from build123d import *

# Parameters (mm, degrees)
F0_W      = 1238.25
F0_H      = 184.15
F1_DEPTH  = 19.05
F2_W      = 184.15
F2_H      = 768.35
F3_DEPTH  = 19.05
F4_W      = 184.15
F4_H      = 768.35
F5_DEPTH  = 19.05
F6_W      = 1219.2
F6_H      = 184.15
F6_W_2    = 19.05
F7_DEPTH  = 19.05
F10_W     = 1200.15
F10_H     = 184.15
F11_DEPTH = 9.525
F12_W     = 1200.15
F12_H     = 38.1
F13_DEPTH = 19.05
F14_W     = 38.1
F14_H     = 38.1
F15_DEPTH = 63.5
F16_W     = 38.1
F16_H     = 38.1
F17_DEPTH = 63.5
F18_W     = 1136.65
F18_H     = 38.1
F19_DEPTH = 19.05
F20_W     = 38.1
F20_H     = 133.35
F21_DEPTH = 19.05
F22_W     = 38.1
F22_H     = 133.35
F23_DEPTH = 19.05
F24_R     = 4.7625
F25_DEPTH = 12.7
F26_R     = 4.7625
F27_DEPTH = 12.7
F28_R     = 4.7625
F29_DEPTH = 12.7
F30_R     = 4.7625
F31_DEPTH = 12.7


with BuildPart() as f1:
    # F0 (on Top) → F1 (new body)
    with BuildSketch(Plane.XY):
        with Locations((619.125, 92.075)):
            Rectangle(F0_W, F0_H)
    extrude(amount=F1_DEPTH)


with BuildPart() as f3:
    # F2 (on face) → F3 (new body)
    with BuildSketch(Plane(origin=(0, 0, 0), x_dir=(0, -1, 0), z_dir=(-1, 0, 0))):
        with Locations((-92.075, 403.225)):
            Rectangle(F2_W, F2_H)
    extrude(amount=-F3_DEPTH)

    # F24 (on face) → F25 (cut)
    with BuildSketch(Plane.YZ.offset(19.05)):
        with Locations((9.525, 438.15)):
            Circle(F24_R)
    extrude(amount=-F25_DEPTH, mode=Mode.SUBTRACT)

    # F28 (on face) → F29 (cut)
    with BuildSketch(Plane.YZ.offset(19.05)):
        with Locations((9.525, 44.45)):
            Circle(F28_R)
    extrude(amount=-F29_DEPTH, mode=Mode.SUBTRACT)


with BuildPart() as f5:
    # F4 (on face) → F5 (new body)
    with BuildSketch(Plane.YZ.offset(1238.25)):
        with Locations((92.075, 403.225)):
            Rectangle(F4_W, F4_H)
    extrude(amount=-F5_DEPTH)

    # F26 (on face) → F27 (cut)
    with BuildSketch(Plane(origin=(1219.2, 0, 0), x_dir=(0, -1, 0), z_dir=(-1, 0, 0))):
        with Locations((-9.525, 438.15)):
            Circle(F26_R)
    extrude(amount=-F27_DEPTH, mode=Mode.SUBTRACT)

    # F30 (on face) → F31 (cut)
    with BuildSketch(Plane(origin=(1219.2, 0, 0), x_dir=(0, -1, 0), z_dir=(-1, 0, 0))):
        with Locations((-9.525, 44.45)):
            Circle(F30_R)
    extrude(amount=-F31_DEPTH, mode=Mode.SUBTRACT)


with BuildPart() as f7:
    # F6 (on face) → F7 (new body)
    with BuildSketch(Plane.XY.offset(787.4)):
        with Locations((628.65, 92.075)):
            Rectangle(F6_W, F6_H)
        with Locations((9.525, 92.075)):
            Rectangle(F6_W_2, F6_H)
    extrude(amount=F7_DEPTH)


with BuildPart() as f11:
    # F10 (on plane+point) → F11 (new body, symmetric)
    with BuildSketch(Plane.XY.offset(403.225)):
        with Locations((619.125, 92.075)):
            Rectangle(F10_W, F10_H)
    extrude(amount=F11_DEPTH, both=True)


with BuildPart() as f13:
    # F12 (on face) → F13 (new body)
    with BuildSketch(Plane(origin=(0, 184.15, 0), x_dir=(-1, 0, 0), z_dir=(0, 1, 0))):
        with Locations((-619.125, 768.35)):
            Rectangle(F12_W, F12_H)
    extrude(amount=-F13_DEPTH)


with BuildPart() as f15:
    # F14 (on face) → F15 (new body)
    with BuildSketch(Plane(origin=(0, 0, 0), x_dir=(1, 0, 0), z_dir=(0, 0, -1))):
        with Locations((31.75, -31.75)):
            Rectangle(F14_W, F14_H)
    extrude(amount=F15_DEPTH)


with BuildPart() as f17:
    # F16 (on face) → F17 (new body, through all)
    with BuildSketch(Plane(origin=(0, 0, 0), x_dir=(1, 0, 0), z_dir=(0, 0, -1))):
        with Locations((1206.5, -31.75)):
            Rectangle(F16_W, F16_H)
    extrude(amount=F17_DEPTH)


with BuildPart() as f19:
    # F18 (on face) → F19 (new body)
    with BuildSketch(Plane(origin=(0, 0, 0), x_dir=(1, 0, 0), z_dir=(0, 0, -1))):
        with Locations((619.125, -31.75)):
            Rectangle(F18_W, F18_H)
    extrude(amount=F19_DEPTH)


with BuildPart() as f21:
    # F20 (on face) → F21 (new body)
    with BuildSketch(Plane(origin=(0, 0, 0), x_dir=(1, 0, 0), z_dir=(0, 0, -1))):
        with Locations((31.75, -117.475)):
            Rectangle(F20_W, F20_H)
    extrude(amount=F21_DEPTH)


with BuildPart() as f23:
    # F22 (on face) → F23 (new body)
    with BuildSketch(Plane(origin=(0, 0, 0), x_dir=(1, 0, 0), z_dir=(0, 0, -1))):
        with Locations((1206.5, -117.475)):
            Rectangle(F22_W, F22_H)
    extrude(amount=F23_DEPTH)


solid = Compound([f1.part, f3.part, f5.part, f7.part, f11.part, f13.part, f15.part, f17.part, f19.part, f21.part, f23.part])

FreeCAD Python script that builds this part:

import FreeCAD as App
import Part
import Sketcher
from FreeCAD import Vector
Q = App.Units.Quantity

doc = App.newDocument("Part")
body = doc.addObject("PartDesign::Body", "Body")

sketch1 = body.newObject("Sketcher::SketchObject", "Sketch")
sketch1.AttachmentSupport = (doc.getObject("XY_Plane"), [""])
sketch1.MapMode = "FlatFace"
sketch1.addGeometry(Part.LineSegment(Vector(0, 184, 0), Vector(0, 0, 0)), False)
sketch1.addGeometry(Part.LineSegment(Vector(0, 0, 0), Vector(1238, 0, 0)), False)
sketch1.addGeometry(Part.LineSegment(Vector(1238, 0, 0), Vector(1238, 184, 0)), False)
sketch1.addGeometry(Part.LineSegment(Vector(1238, 184, 0), Vector(0, 184, 0)), False)
sketch1.addConstraint(Sketcher.Constraint("Coincident", 0, 2, 1, 1))
sketch1.addConstraint(Sketcher.Constraint("Coincident", 1, 2, 2, 1))
sketch1.addConstraint(Sketcher.Constraint("Coincident", 2, 2, 3, 1))
sketch1.addConstraint(Sketcher.Constraint("Coincident", 3, 2, 0, 1))
sketch1.addConstraint(Sketcher.Constraint("Vertical", 0))
sketch1.addConstraint(Sketcher.Constraint("Horizontal", 1))
sketch1.addConstraint(Sketcher.Constraint("Vertical", 2))
sketch1.addConstraint(Sketcher.Constraint("Horizontal", 3))
sketch1.addConstraint(Sketcher.Constraint("Coincident", 0, 2, -1, 1))
sketch1.addConstraint(Sketcher.Constraint("DistanceX", 1, 1, 1, 2, Q("48.75 in")))
sketch1.addConstraint(Sketcher.Constraint("DistanceY", 0, 2, 0, 1, Q("7.25 in")))
pad1 = body.newObject("PartDesign::Pad", "Pad")
pad1.Profile = sketch1
pad1.Length = Q("0.75 in")
body2 = doc.addObject("PartDesign::Body", "Body001")

sketch2 = body2.newObject("Sketcher::SketchObject", "Sketch001")
sketch2.AttachmentSupport = (doc.getObject("YZ_Plane001"), [""])
sketch2.MapMode = "FlatFace"
sketch2.addGeometry(Part.LineSegment(Vector(184, 787, 0), Vector(184, 19, 0)), False)
sketch2.addGeometry(Part.LineSegment(Vector(184, 19, 0), Vector(0, 19, 0)), False)
sketch2.addGeometry(Part.LineSegment(Vector(0, 19, 0), Vector(0, 787, 0)), False)
sketch2.addGeometry(Part.LineSegment(Vector(0, 787, 0), Vector(184, 787, 0)), False)
sketch2.addConstraint(Sketcher.Constraint("Coincident", 0, 2, 1, 1))
sketch2.addConstraint(Sketcher.Constraint("Coincident", 1, 2, 2, 1))
sketch2.addConstraint(Sketcher.Constraint("Coincident", 2, 2, 3, 1))
sketch2.addConstraint(Sketcher.Constraint("Coincident", 3, 2, 0, 1))
sketch2.addConstraint(Sketcher.Constraint("Vertical", 0))
sketch2.addConstraint(Sketcher.Constraint("Horizontal", 1))
sketch2.addConstraint(Sketcher.Constraint("Vertical", 2))
sketch2.addConstraint(Sketcher.Constraint("Horizontal", 3))
sketch2.addConstraint(Sketcher.Constraint("PointOnObject", 1, 2, -2))
sketch2.addConstraint(Sketcher.Constraint("DistanceY", -1, 1, 2, 2, Q("31 in")))
sketch2.addConstraint(Sketcher.Constraint("DistanceX", 1, 2, 1, 1, Q("7.25 in")))
sketch2.addConstraint(Sketcher.Constraint("DistanceY", 0, 2, 0, 1, Q("30.25 in")))
pad2 = body2.newObject("PartDesign::Pad", "Pad001")
pad2.Profile = sketch2
pad2.Length = Q("0.75 in")

sketch3 = body2.newObject("Sketcher::SketchObject", "Sketch002")
sketch3.AttachmentSupport = (doc.getObject("YZ_Plane001"), [""])
sketch3.MapMode = "FlatFace"
sketch3.AttachmentOffset = App.Placement(Vector(0, 0, 0.75 * 25.4), App.Rotation())
sketch3.addGeometry(Part.Circle(Vector(9.5, 438.1, 0), Vector(0, 0, 1), 4.8), False)
sketch3.addConstraint(Sketcher.Constraint("Diameter", 0, Q("0.375 in")))
sketch3.addConstraint(Sketcher.Constraint("DistanceY", -1, 1, 0, 3, Q("17.25 in")))
sketch3.addConstraint(Sketcher.Constraint("DistanceX", -1, 1, 0, 3, Q("0.375 in")))
pocket1 = body2.newObject("PartDesign::Pocket", "Pocket")
pocket1.Profile = sketch3
pocket1.Length = Q("0.5 in")

sketch4 = body2.newObject("Sketcher::SketchObject", "Sketch003")
sketch4.AttachmentSupport = (doc.getObject("YZ_Plane001"), [""])
sketch4.MapMode = "FlatFace"
sketch4.AttachmentOffset = App.Placement(Vector(0, 0, 0.75 * 25.4), App.Rotation())
sketch4.addGeometry(Part.Circle(Vector(9.5, 44.5, 0), Vector(0, 0, 1), 4.8), False)
sketch4.addConstraint(Sketcher.Constraint("Diameter", 0, Q("0.375 in")))
sketch4.addConstraint(Sketcher.Constraint("DistanceY", -1, 1, 0, 3, Q("1.75 in")))
sketch4.addConstraint(Sketcher.Constraint("DistanceX", -1, 1, 0, 3, Q("0.375 in")))
pocket2 = body2.newObject("PartDesign::Pocket", "Pocket001")
pocket2.Profile = sketch4
pocket2.Length = Q("0.5 in")
body3 = doc.addObject("PartDesign::Body", "Body002")

sketch5 = body3.newObject("Sketcher::SketchObject", "Sketch004")
sketch5.AttachmentSupport = (doc.getObject("YZ_Plane002"), [""])
sketch5.MapMode = "FlatFace"
sketch5.AttachmentOffset = App.Placement(Vector(0, 0, 48.75 * 25.4), App.Rotation())
sketch5.addGeometry(Part.LineSegment(Vector(0, 787, 0), Vector(0, 19, 0)), False)
sketch5.addGeometry(Part.LineSegment(Vector(0, 19, 0), Vector(184, 19, 0)), False)
sketch5.addGeometry(Part.LineSegment(Vector(184, 19, 0), Vector(184, 787, 0)), False)
sketch5.addGeometry(Part.LineSegment(Vector(184, 787, 0), Vector(0, 787, 0)), False)
sketch5.addConstraint(Sketcher.Constraint("Coincident", 0, 2, 1, 1))
sketch5.addConstraint(Sketcher.Constraint("Coincident", 1, 2, 2, 1))
sketch5.addConstraint(Sketcher.Constraint("Coincident", 2, 2, 3, 1))
sketch5.addConstraint(Sketcher.Constraint("Coincident", 3, 2, 0, 1))
sketch5.addConstraint(Sketcher.Constraint("Vertical", 0))
sketch5.addConstraint(Sketcher.Constraint("Horizontal", 1))
sketch5.addConstraint(Sketcher.Constraint("Vertical", 2))
sketch5.addConstraint(Sketcher.Constraint("Horizontal", 3))
sketch5.addConstraint(Sketcher.Constraint("PointOnObject", 0, 2, -2))
sketch5.addConstraint(Sketcher.Constraint("DistanceY", -1, 1, 2, 2, Q("31 in")))
sketch5.addConstraint(Sketcher.Constraint("DistanceX", 1, 1, 1, 2, Q("7.25 in")))
sketch5.addConstraint(Sketcher.Constraint("DistanceY", 0, 2, 0, 1, Q("30.25 in")))
pad3 = body3.newObject("PartDesign::Pad", "Pad002")
pad3.Profile = sketch5
pad3.Length = Q("0.75 in")
pad3.Reversed = True

sketch6 = body3.newObject("Sketcher::SketchObject", "Sketch005")
sketch6.AttachmentSupport = (doc.getObject("YZ_Plane002"), [""])
sketch6.MapMode = "FlatFace"
sketch6.AttachmentOffset = App.Placement(Vector(0, 0, 48 * 25.4), App.Rotation())
sketch6.addGeometry(Part.Circle(Vector(9.5, 438.1, 0), Vector(0, 0, 1), 4.8), False)
sketch6.addConstraint(Sketcher.Constraint("Diameter", 0, Q("0.375 in")))
sketch6.addConstraint(Sketcher.Constraint("DistanceY", -1, 1, 0, 3, Q("17.25 in")))
sketch6.addConstraint(Sketcher.Constraint("DistanceX", -1, 1, 0, 3, Q("0.375 in")))
pocket3 = body3.newObject("PartDesign::Pocket", "Pocket002")
pocket3.Profile = sketch6
pocket3.Length = Q("0.5 in")
pocket3.Reversed = True

sketch7 = body3.newObject("Sketcher::SketchObject", "Sketch006")
sketch7.AttachmentSupport = (doc.getObject("YZ_Plane002"), [""])
sketch7.MapMode = "FlatFace"
sketch7.AttachmentOffset = App.Placement(Vector(0, 0, 48 * 25.4), App.Rotation())
sketch7.addGeometry(Part.Circle(Vector(9.5, 44.5, 0), Vector(0, 0, 1), 4.8), False)
sketch7.addConstraint(Sketcher.Constraint("Diameter", 0, Q("0.375 in")))
sketch7.addConstraint(Sketcher.Constraint("DistanceY", -1, 1, 0, 3, Q("1.75 in")))
sketch7.addConstraint(Sketcher.Constraint("DistanceX", -1, 1, 0, 3, Q("0.375 in")))
pocket4 = body3.newObject("PartDesign::Pocket", "Pocket003")
pocket4.Profile = sketch7
pocket4.Length = Q("0.5 in")
pocket4.Reversed = True
body4 = doc.addObject("PartDesign::Body", "Body003")

sketch8 = body4.newObject("Sketcher::SketchObject", "Sketch007")
sketch8.AttachmentSupport = (doc.getObject("XY_Plane003"), [""])
sketch8.MapMode = "FlatFace"
sketch8.AttachmentOffset = App.Placement(Vector(0, 0, 31 * 25.4), App.Rotation())
sketch8.addGeometry(Part.LineSegment(Vector(1238, 0, 0), Vector(1238, 184, 0)), False)
sketch8.addGeometry(Part.LineSegment(Vector(1238, 184, 0), Vector(0, 184, 0)), False)
sketch8.addGeometry(Part.LineSegment(Vector(0, 184, 0), Vector(0, 0, 0)), False)
sketch8.addGeometry(Part.LineSegment(Vector(0, 0, 0), Vector(1238, 0, 0)), False)
sketch8.addConstraint(Sketcher.Constraint("Coincident", 0, 2, 1, 1))
sketch8.addConstraint(Sketcher.Constraint("Coincident", 1, 2, 2, 1))
sketch8.addConstraint(Sketcher.Constraint("Coincident", 2, 2, 3, 1))
sketch8.addConstraint(Sketcher.Constraint("Coincident", 3, 2, 0, 1))
sketch8.addConstraint(Sketcher.Constraint("Vertical", 0))
sketch8.addConstraint(Sketcher.Constraint("Horizontal", 1))
sketch8.addConstraint(Sketcher.Constraint("Vertical", 2))
sketch8.addConstraint(Sketcher.Constraint("Horizontal", 3))
sketch8.addConstraint(Sketcher.Constraint("Coincident", 2, 2, -1, 1))
sketch8.addConstraint(Sketcher.Constraint("DistanceX", 1, 2, 1, 1, Q("48.75 in")))
sketch8.addConstraint(Sketcher.Constraint("DistanceY", 0, 1, 0, 2, Q("7.25 in")))
pad4 = body4.newObject("PartDesign::Pad", "Pad003")
pad4.Profile = sketch8
pad4.Length = Q("0.75 in")
body5 = doc.addObject("PartDesign::Body", "Body004")

sketch9 = body5.newObject("Sketcher::SketchObject", "Sketch008")
sketch9.AttachmentSupport = (doc.getObject("XY_Plane004"), [""])
sketch9.MapMode = "FlatFace"
sketch9.AttachmentOffset = App.Placement(Vector(0, 0, 15.875 * 25.4), App.Rotation())
sketch9.addGeometry(Part.LineSegment(Vector(19, 184, 0), Vector(19, 0, 0)), False)
sketch9.addGeometry(Part.LineSegment(Vector(19, 0, 0), Vector(1219, 0, 0)), False)
sketch9.addGeometry(Part.LineSegment(Vector(1219, 0, 0), Vector(1219, 184, 0)), False)
sketch9.addGeometry(Part.LineSegment(Vector(1219, 184, 0), Vector(19, 184, 0)), False)
sketch9.addConstraint(Sketcher.Constraint("Coincident", 0, 2, 1, 1))
sketch9.addConstraint(Sketcher.Constraint("Coincident", 1, 2, 2, 1))
sketch9.addConstraint(Sketcher.Constraint("Coincident", 2, 2, 3, 1))
sketch9.addConstraint(Sketcher.Constraint("Coincident", 3, 2, 0, 1))
sketch9.addConstraint(Sketcher.Constraint("Vertical", 0))
sketch9.addConstraint(Sketcher.Constraint("Horizontal", 1))
sketch9.addConstraint(Sketcher.Constraint("Vertical", 2))
sketch9.addConstraint(Sketcher.Constraint("Horizontal", 3))
sketch9.addConstraint(Sketcher.Constraint("PointOnObject", 0, 2, -1))
sketch9.addConstraint(Sketcher.Constraint("DistanceX", -1, 1, 1, 2, Q("48 in")))
sketch9.addConstraint(Sketcher.Constraint("DistanceX", 1, 1, 1, 2, Q("47.25 in")))
sketch9.addConstraint(Sketcher.Constraint("DistanceY", 0, 2, 0, 1, Q("7.25 in")))
pad5 = body5.newObject("PartDesign::Pad", "Pad004")
pad5.Profile = sketch9
pad5.Length = Q("0.75 in")
pad5.Midplane = True
body6 = doc.addObject("PartDesign::Body", "Body005")

sketch10 = body6.newObject("Sketcher::SketchObject", "Sketch009")
sketch10.AttachmentSupport = (doc.getObject("XZ_Plane005"), [""])
sketch10.MapMode = "FlatFace"
sketch10.AttachmentOffset = App.Placement(Vector(0, 0, -7.25 * 25.4), App.Rotation())
sketch10.addGeometry(Part.LineSegment(Vector(1219, 787, 0), Vector(1219, 749, 0)), False)
sketch10.addGeometry(Part.LineSegment(Vector(1219, 749, 0), Vector(19, 749, 0)), False)
sketch10.addGeometry(Part.LineSegment(Vector(19, 749, 0), Vector(19, 787, 0)), False)
sketch10.addGeometry(Part.LineSegment(Vector(19, 787, 0), Vector(1219, 787, 0)), False)
sketch10.addConstraint(Sketcher.Constraint("Coincident", 0, 2, 1, 1))
sketch10.addConstraint(Sketcher.Constraint("Coincident", 1, 2, 2, 1))
sketch10.addConstraint(Sketcher.Constraint("Coincident", 2, 2, 3, 1))
sketch10.addConstraint(Sketcher.Constraint("Coincident", 3, 2, 0, 1))
sketch10.addConstraint(Sketcher.Constraint("Vertical", 0))
sketch10.addConstraint(Sketcher.Constraint("Horizontal", 1))
sketch10.addConstraint(Sketcher.Constraint("Vertical", 2))
sketch10.addConstraint(Sketcher.Constraint("Horizontal", 3))
sketch10.addConstraint(Sketcher.Constraint("DistanceY", 0, 2, 0, 1, Q("1.5 in")))
sketch10.addConstraint(Sketcher.Constraint("DistanceX", -1, 1, 0, 2, Q("48 in")))
sketch10.addConstraint(Sketcher.Constraint("DistanceY", -1, 1, 2, 2, Q("31 in")))
sketch10.addConstraint(Sketcher.Constraint("DistanceX", 1, 2, 1, 1, Q("47.25 in")))
pad6 = body6.newObject("PartDesign::Pad", "Pad005")
pad6.Profile = sketch10
pad6.Length = Q("0.75 in")
body7 = doc.addObject("PartDesign::Body", "Body006")

sketch11 = body7.newObject("Sketcher::SketchObject", "Sketch010")
sketch11.AttachmentSupport = (doc.getObject("XY_Plane006"), [""])
sketch11.MapMode = "FlatFace"
sketch11.addGeometry(Part.LineSegment(Vector(13, 13, 0), Vector(13, 51, 0)), False)
sketch11.addGeometry(Part.LineSegment(Vector(13, 51, 0), Vector(51, 51, 0)), False)
sketch11.addGeometry(Part.LineSegment(Vector(51, 51, 0), Vector(51, 13, 0)), False)
sketch11.addGeometry(Part.LineSegment(Vector(51, 13, 0), Vector(13, 13, 0)), False)
sketch11.addConstraint(Sketcher.Constraint("Coincident", 0, 2, 1, 1))
sketch11.addConstraint(Sketcher.Constraint("Coincident", 1, 2, 2, 1))
sketch11.addConstraint(Sketcher.Constraint("Coincident", 2, 2, 3, 1))
sketch11.addConstraint(Sketcher.Constraint("Coincident", 3, 2, 0, 1))
sketch11.addConstraint(Sketcher.Constraint("Vertical", 0))
sketch11.addConstraint(Sketcher.Constraint("Horizontal", 1))
sketch11.addConstraint(Sketcher.Constraint("Vertical", 2))
sketch11.addConstraint(Sketcher.Constraint("Horizontal", 3))
sketch11.addConstraint(Sketcher.Constraint("Equal", 3, 0))
sketch11.addConstraint(Sketcher.Constraint("DistanceX", 1, 1, 1, 2, Q("1.5 in")))
sketch11.addConstraint(Sketcher.Constraint("DistanceY", -1, 1, 0, 2, Q("2 in")))
sketch11.addConstraint(Sketcher.Constraint("DistanceX", -1, 1, 1, 2, Q("2 in")))
pad7 = body7.newObject("PartDesign::Pad", "Pad006")
pad7.Profile = sketch11
pad7.Length = Q("2.5 in")
pad7.Reversed = True
body8 = doc.addObject("PartDesign::Body", "Body007")

sketch12 = body8.newObject("Sketcher::SketchObject", "Sketch011")
sketch12.AttachmentSupport = (doc.getObject("XY_Plane007"), [""])
sketch12.MapMode = "FlatFace"
sketch12.addGeometry(Part.LineSegment(Vector(1187, 13, 0), Vector(1187, 51, 0)), False)
sketch12.addGeometry(Part.LineSegment(Vector(1187, 51, 0), Vector(1226, 51, 0)), False)
sketch12.addGeometry(Part.LineSegment(Vector(1226, 51, 0), Vector(1226, 13, 0)), False)
sketch12.addGeometry(Part.LineSegment(Vector(1226, 13, 0), Vector(1187, 13, 0)), False)
sketch12.addConstraint(Sketcher.Constraint("Coincident", 0, 2, 1, 1))
sketch12.addConstraint(Sketcher.Constraint("Coincident", 1, 2, 2, 1))
sketch12.addConstraint(Sketcher.Constraint("Coincident", 2, 2, 3, 1))
sketch12.addConstraint(Sketcher.Constraint("Coincident", 3, 2, 0, 1))
sketch12.addConstraint(Sketcher.Constraint("Vertical", 0))
sketch12.addConstraint(Sketcher.Constraint("Horizontal", 1))
sketch12.addConstraint(Sketcher.Constraint("Vertical", 2))
sketch12.addConstraint(Sketcher.Constraint("Horizontal", 3))
sketch12.addConstraint(Sketcher.Constraint("Equal", 3, 0))
sketch12.addConstraint(Sketcher.Constraint("DistanceX", 1, 1, 1, 2, Q("1.5 in")))
sketch12.addConstraint(Sketcher.Constraint("DistanceY", -1, 1, 0, 2, Q("2 in")))
sketch12.addConstraint(Sketcher.Constraint("DistanceX", -1, 1, 0, 2, Q("46.75 in")))
pad8 = body8.newObject("PartDesign::Pad", "Pad007")
pad8.Profile = sketch12
pad8.Length = Q("2.5 in")
pad8.Reversed = True
body9 = doc.addObject("PartDesign::Body", "Body008")

sketch13 = body9.newObject("Sketcher::SketchObject", "Sketch012")
sketch13.AttachmentSupport = (doc.getObject("XY_Plane008"), [""])
sketch13.MapMode = "FlatFace"
sketch13.addGeometry(Part.LineSegment(Vector(51, 13, 0), Vector(51, 51, 0)), False)
sketch13.addGeometry(Part.LineSegment(Vector(51, 51, 0), Vector(1187, 51, 0)), False)
sketch13.addGeometry(Part.LineSegment(Vector(1187, 51, 0), Vector(1187, 13, 0)), False)
sketch13.addGeometry(Part.LineSegment(Vector(1187, 13, 0), Vector(51, 13, 0)), False)
sketch13.addConstraint(Sketcher.Constraint("Coincident", 0, 2, 1, 1))
sketch13.addConstraint(Sketcher.Constraint("Coincident", 1, 2, 2, 1))
sketch13.addConstraint(Sketcher.Constraint("Coincident", 2, 2, 3, 1))
sketch13.addConstraint(Sketcher.Constraint("Coincident", 3, 2, 0, 1))
sketch13.addConstraint(Sketcher.Constraint("Vertical", 0))
sketch13.addConstraint(Sketcher.Constraint("Horizontal", 1))
sketch13.addConstraint(Sketcher.Constraint("Vertical", 2))
sketch13.addConstraint(Sketcher.Constraint("Horizontal", 3))
sketch13.addConstraint(Sketcher.Constraint("DistanceY", 0, 1, 0, 2, Q("1.5 in")))
sketch13.addConstraint(Sketcher.Constraint("DistanceX", -1, 1, 0, 2, Q("2 in")))
sketch13.addConstraint(Sketcher.Constraint("DistanceY", -1, 1, 0, 2, Q("2 in")))
sketch13.addConstraint(Sketcher.Constraint("DistanceX", 1, 1, 1, 2, Q("44.75 in")))
pad9 = body9.newObject("PartDesign::Pad", "Pad008")
pad9.Profile = sketch13
pad9.Length = Q("0.75 in")
pad9.Reversed = True
body10 = doc.addObject("PartDesign::Body", "Body009")

sketch14 = body10.newObject("Sketcher::SketchObject", "Sketch013")
sketch14.AttachmentSupport = (doc.getObject("XY_Plane009"), [""])
sketch14.MapMode = "FlatFace"
sketch14.addGeometry(Part.LineSegment(Vector(13, 51, 0), Vector(13, 184, 0)), False)
sketch14.addGeometry(Part.LineSegment(Vector(13, 184, 0), Vector(51, 184, 0)), False)
sketch14.addGeometry(Part.LineSegment(Vector(51, 184, 0), Vector(51, 51, 0)), False)
sketch14.addGeometry(Part.LineSegment(Vector(51, 51, 0), Vector(13, 51, 0)), False)
sketch14.addConstraint(Sketcher.Constraint("Coincident", 0, 2, 1, 1))
sketch14.addConstraint(Sketcher.Constraint("Coincident", 1, 2, 2, 1))
sketch14.addConstraint(Sketcher.Constraint("Coincident", 2, 2, 3, 1))
sketch14.addConstraint(Sketcher.Constraint("Coincident", 3, 2, 0, 1))
sketch14.addConstraint(Sketcher.Constraint("Vertical", 0))
sketch14.addConstraint(Sketcher.Constraint("Horizontal", 1))
sketch14.addConstraint(Sketcher.Constraint("Vertical", 2))
sketch14.addConstraint(Sketcher.Constraint("Horizontal", 3))
sketch14.addConstraint(Sketcher.Constraint("DistanceX", 1, 1, 1, 2, Q("1.5 in")))
sketch14.addConstraint(Sketcher.Constraint("DistanceX", -1, 1, 1, 2, Q("2 in")))
sketch14.addConstraint(Sketcher.Constraint("DistanceY", -1, 1, 2, 2, Q("2 in")))
sketch14.addConstraint(Sketcher.Constraint("DistanceY", 0, 1, 0, 2, Q("5.25 in")))
pad10 = body10.newObject("PartDesign::Pad", "Pad009")
pad10.Profile = sketch14
pad10.Length = Q("0.75 in")
pad10.Reversed = True
body11 = doc.addObject("PartDesign::Body", "Body010")

sketch15 = body11.newObject("Sketcher::SketchObject", "Sketch014")
sketch15.AttachmentSupport = (doc.getObject("XY_Plane010"), [""])
sketch15.MapMode = "FlatFace"
sketch15.addGeometry(Part.LineSegment(Vector(1187, 51, 0), Vector(1187, 184, 0)), False)
sketch15.addGeometry(Part.LineSegment(Vector(1187, 184, 0), Vector(1226, 184, 0)), False)
sketch15.addGeometry(Part.LineSegment(Vector(1226, 184, 0), Vector(1226, 51, 0)), False)
sketch15.addGeometry(Part.LineSegment(Vector(1226, 51, 0), Vector(1187, 51, 0)), False)
sketch15.addConstraint(Sketcher.Constraint("Coincident", 0, 2, 1, 1))
sketch15.addConstraint(Sketcher.Constraint("Coincident", 1, 2, 2, 1))
sketch15.addConstraint(Sketcher.Constraint("Coincident", 2, 2, 3, 1))
sketch15.addConstraint(Sketcher.Constraint("Coincident", 3, 2, 0, 1))
sketch15.addConstraint(Sketcher.Constraint("Vertical", 0))
sketch15.addConstraint(Sketcher.Constraint("Horizontal", 1))
sketch15.addConstraint(Sketcher.Constraint("Vertical", 2))
sketch15.addConstraint(Sketcher.Constraint("Horizontal", 3))
sketch15.addConstraint(Sketcher.Constraint("DistanceX", 1, 1, 1, 2, Q("1.5 in")))
sketch15.addConstraint(Sketcher.Constraint("DistanceY", -1, 1, 2, 2, Q("2 in")))
sketch15.addConstraint(Sketcher.Constraint("DistanceY", 0, 1, 0, 2, Q("5.25 in")))
sketch15.addConstraint(Sketcher.Constraint("DistanceX", -1, 1, 0, 2, Q("46.75 in")))
pad11 = body11.newObject("PartDesign::Pad", "Pad010")
pad11.Profile = sketch15
pad11.Length = Q("0.75 in")
pad11.Reversed = True

doc.recompute()
